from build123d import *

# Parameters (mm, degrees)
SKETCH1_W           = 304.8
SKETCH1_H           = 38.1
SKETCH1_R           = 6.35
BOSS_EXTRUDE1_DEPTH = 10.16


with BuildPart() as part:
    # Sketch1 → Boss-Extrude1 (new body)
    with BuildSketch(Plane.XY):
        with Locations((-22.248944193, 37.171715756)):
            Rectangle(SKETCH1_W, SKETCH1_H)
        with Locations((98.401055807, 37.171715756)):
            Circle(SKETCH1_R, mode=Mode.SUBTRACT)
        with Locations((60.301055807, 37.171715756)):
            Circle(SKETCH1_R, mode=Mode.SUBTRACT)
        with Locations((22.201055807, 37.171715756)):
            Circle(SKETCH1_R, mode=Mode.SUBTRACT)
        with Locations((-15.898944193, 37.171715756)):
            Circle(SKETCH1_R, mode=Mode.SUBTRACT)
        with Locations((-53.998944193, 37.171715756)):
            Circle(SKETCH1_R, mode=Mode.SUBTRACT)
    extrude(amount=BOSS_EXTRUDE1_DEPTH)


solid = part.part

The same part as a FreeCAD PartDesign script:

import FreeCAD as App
import Part
import Sketcher

V = App.Vector
Q = App.Units.Quantity

doc = App.newDocument("Part")
params = doc.addObject("Spreadsheet::Sheet", "Params")
for row, (alias, value) in enumerate([
    ("sketch1_diameter", "0.5 in"),
    ("sketch1_width", "12 in"),
    ("sketch1_height", "1.5 in"),
    ("pad1_length", "0.4 in"),
], start=1):
    params.set(f"A{row}", alias)
    params.set(f"B{row}", "=" + value)
    params.setAlias(f"B{row}", alias)

body = doc.addObject("PartDesign::Body", "Body")

# Sketch on XY plane
sketch1 = doc.addObject("Sketcher::SketchObject", "Sketch")
body.addObject(sketch1)
sketch1.AttachmentSupport = (doc.XY_Plane, [""])
sketch1.MapMode = "FlatFace"
sketch1.addGeometry([
    Part.LineSegment(V(-175, 56, 0), V(-175, 18, 0)),  # 0
    Part.LineSegment(V(-175, 18, 0), V(130, 18, 0)),  # 1
    Part.LineSegment(V(130, 18, 0), V(130, 56, 0)),  # 2
    Part.LineSegment(V(130, 56, 0), V(-175, 56, 0)),  # 3
    Part.Circle(V(-54, 37, 0), V(0, 0, 1), 6),  # 4
    Part.Circle(V(-16, 37, 0), V(0, 0, 1), 6),  # 5
    Part.Circle(V(22, 37, 0), V(0, 0, 1), 6),  # 6
    Part.Circle(V(60, 37, 0), V(0, 0, 1), 6),  # 7
    Part.Circle(V(98, 37, 0), V(0, 0, 1), 6),  # 8
], False)
sketch1.addConstraint([
    Sketcher.Constraint("Coincident", 0, 2, 1, 1),
    Sketcher.Constraint("Coincident", 1, 2, 2, 1),
    Sketcher.Constraint("Coincident", 2, 2, 3, 1),
    Sketcher.Constraint("Coincident", 3, 2, 0, 1),
    Sketcher.Constraint("Vertical", 0),
    Sketcher.Constraint("Horizontal", 1),
    Sketcher.Constraint("Vertical", 2),
    Sketcher.Constraint("Horizontal", 3),
    Sketcher.Constraint("Equal", 4, 5),
    Sketcher.Constraint("Equal", 5, 6),
    Sketcher.Constraint("Equal", 6, 7),
    Sketcher.Constraint("Equal", 7, 8),
    Sketcher.Constraint("Horizontal", 4, 3, 5, 3),
    Sketcher.Constraint("Horizontal", 5, 3, 6, 3),
    Sketcher.Constraint("Horizontal", 6, 3, 7, 3),
    Sketcher.Constraint("Horizontal", 7, 3, 8, 3),
    Sketcher.Constraint("Diameter", 4, Q("0.5 in")),
    Sketcher.Constraint("DistanceX", 1, 1, 1, 2, Q("12 in")),
    Sketcher.Constraint("DistanceY", 0, 2, 0, 1, Q("1.5 in")),
    Sketcher.Constraint("DistanceX", 4, 3, 6, 3, Q("3 in")),
    Sketcher.Constraint("DistanceX", 5, 3, 7, 3, Q("3 in")),
    Sketcher.Constraint("DistanceX", 6, 3, 8, 3, Q("3 in")),
    Sketcher.Constraint("DistanceX", 4, 3, 5, 3, Q("1.5 in")),
    Sketcher.Constraint("DistanceX", 0, 2, 4, 3, Q("4.75 in")),
    Sketcher.Constraint("DistanceY", 0, 2, 4, 3, Q("0.75 in")),
    Sketcher.Constraint("DistanceX", 4, 3, -1, 1, 53.998944),
    Sketcher.Constraint("DistanceY", -1, 1, 4, 3, 37.171716),
])
sketch1.setExpression("Constraints[16]", "Params.sketch1_diameter")
sketch1.setExpression("Constraints[17]", "Params.sketch1_width")
sketch1.setExpression("Constraints[18]", "Params.sketch1_height")
pad1 = doc.addObject("PartDesign::Pad", "Pad")
body.addObject(pad1)
pad1.Profile = sketch1
pad1.setExpression("Length", "Params.pad1_length")

doc.recompute()
